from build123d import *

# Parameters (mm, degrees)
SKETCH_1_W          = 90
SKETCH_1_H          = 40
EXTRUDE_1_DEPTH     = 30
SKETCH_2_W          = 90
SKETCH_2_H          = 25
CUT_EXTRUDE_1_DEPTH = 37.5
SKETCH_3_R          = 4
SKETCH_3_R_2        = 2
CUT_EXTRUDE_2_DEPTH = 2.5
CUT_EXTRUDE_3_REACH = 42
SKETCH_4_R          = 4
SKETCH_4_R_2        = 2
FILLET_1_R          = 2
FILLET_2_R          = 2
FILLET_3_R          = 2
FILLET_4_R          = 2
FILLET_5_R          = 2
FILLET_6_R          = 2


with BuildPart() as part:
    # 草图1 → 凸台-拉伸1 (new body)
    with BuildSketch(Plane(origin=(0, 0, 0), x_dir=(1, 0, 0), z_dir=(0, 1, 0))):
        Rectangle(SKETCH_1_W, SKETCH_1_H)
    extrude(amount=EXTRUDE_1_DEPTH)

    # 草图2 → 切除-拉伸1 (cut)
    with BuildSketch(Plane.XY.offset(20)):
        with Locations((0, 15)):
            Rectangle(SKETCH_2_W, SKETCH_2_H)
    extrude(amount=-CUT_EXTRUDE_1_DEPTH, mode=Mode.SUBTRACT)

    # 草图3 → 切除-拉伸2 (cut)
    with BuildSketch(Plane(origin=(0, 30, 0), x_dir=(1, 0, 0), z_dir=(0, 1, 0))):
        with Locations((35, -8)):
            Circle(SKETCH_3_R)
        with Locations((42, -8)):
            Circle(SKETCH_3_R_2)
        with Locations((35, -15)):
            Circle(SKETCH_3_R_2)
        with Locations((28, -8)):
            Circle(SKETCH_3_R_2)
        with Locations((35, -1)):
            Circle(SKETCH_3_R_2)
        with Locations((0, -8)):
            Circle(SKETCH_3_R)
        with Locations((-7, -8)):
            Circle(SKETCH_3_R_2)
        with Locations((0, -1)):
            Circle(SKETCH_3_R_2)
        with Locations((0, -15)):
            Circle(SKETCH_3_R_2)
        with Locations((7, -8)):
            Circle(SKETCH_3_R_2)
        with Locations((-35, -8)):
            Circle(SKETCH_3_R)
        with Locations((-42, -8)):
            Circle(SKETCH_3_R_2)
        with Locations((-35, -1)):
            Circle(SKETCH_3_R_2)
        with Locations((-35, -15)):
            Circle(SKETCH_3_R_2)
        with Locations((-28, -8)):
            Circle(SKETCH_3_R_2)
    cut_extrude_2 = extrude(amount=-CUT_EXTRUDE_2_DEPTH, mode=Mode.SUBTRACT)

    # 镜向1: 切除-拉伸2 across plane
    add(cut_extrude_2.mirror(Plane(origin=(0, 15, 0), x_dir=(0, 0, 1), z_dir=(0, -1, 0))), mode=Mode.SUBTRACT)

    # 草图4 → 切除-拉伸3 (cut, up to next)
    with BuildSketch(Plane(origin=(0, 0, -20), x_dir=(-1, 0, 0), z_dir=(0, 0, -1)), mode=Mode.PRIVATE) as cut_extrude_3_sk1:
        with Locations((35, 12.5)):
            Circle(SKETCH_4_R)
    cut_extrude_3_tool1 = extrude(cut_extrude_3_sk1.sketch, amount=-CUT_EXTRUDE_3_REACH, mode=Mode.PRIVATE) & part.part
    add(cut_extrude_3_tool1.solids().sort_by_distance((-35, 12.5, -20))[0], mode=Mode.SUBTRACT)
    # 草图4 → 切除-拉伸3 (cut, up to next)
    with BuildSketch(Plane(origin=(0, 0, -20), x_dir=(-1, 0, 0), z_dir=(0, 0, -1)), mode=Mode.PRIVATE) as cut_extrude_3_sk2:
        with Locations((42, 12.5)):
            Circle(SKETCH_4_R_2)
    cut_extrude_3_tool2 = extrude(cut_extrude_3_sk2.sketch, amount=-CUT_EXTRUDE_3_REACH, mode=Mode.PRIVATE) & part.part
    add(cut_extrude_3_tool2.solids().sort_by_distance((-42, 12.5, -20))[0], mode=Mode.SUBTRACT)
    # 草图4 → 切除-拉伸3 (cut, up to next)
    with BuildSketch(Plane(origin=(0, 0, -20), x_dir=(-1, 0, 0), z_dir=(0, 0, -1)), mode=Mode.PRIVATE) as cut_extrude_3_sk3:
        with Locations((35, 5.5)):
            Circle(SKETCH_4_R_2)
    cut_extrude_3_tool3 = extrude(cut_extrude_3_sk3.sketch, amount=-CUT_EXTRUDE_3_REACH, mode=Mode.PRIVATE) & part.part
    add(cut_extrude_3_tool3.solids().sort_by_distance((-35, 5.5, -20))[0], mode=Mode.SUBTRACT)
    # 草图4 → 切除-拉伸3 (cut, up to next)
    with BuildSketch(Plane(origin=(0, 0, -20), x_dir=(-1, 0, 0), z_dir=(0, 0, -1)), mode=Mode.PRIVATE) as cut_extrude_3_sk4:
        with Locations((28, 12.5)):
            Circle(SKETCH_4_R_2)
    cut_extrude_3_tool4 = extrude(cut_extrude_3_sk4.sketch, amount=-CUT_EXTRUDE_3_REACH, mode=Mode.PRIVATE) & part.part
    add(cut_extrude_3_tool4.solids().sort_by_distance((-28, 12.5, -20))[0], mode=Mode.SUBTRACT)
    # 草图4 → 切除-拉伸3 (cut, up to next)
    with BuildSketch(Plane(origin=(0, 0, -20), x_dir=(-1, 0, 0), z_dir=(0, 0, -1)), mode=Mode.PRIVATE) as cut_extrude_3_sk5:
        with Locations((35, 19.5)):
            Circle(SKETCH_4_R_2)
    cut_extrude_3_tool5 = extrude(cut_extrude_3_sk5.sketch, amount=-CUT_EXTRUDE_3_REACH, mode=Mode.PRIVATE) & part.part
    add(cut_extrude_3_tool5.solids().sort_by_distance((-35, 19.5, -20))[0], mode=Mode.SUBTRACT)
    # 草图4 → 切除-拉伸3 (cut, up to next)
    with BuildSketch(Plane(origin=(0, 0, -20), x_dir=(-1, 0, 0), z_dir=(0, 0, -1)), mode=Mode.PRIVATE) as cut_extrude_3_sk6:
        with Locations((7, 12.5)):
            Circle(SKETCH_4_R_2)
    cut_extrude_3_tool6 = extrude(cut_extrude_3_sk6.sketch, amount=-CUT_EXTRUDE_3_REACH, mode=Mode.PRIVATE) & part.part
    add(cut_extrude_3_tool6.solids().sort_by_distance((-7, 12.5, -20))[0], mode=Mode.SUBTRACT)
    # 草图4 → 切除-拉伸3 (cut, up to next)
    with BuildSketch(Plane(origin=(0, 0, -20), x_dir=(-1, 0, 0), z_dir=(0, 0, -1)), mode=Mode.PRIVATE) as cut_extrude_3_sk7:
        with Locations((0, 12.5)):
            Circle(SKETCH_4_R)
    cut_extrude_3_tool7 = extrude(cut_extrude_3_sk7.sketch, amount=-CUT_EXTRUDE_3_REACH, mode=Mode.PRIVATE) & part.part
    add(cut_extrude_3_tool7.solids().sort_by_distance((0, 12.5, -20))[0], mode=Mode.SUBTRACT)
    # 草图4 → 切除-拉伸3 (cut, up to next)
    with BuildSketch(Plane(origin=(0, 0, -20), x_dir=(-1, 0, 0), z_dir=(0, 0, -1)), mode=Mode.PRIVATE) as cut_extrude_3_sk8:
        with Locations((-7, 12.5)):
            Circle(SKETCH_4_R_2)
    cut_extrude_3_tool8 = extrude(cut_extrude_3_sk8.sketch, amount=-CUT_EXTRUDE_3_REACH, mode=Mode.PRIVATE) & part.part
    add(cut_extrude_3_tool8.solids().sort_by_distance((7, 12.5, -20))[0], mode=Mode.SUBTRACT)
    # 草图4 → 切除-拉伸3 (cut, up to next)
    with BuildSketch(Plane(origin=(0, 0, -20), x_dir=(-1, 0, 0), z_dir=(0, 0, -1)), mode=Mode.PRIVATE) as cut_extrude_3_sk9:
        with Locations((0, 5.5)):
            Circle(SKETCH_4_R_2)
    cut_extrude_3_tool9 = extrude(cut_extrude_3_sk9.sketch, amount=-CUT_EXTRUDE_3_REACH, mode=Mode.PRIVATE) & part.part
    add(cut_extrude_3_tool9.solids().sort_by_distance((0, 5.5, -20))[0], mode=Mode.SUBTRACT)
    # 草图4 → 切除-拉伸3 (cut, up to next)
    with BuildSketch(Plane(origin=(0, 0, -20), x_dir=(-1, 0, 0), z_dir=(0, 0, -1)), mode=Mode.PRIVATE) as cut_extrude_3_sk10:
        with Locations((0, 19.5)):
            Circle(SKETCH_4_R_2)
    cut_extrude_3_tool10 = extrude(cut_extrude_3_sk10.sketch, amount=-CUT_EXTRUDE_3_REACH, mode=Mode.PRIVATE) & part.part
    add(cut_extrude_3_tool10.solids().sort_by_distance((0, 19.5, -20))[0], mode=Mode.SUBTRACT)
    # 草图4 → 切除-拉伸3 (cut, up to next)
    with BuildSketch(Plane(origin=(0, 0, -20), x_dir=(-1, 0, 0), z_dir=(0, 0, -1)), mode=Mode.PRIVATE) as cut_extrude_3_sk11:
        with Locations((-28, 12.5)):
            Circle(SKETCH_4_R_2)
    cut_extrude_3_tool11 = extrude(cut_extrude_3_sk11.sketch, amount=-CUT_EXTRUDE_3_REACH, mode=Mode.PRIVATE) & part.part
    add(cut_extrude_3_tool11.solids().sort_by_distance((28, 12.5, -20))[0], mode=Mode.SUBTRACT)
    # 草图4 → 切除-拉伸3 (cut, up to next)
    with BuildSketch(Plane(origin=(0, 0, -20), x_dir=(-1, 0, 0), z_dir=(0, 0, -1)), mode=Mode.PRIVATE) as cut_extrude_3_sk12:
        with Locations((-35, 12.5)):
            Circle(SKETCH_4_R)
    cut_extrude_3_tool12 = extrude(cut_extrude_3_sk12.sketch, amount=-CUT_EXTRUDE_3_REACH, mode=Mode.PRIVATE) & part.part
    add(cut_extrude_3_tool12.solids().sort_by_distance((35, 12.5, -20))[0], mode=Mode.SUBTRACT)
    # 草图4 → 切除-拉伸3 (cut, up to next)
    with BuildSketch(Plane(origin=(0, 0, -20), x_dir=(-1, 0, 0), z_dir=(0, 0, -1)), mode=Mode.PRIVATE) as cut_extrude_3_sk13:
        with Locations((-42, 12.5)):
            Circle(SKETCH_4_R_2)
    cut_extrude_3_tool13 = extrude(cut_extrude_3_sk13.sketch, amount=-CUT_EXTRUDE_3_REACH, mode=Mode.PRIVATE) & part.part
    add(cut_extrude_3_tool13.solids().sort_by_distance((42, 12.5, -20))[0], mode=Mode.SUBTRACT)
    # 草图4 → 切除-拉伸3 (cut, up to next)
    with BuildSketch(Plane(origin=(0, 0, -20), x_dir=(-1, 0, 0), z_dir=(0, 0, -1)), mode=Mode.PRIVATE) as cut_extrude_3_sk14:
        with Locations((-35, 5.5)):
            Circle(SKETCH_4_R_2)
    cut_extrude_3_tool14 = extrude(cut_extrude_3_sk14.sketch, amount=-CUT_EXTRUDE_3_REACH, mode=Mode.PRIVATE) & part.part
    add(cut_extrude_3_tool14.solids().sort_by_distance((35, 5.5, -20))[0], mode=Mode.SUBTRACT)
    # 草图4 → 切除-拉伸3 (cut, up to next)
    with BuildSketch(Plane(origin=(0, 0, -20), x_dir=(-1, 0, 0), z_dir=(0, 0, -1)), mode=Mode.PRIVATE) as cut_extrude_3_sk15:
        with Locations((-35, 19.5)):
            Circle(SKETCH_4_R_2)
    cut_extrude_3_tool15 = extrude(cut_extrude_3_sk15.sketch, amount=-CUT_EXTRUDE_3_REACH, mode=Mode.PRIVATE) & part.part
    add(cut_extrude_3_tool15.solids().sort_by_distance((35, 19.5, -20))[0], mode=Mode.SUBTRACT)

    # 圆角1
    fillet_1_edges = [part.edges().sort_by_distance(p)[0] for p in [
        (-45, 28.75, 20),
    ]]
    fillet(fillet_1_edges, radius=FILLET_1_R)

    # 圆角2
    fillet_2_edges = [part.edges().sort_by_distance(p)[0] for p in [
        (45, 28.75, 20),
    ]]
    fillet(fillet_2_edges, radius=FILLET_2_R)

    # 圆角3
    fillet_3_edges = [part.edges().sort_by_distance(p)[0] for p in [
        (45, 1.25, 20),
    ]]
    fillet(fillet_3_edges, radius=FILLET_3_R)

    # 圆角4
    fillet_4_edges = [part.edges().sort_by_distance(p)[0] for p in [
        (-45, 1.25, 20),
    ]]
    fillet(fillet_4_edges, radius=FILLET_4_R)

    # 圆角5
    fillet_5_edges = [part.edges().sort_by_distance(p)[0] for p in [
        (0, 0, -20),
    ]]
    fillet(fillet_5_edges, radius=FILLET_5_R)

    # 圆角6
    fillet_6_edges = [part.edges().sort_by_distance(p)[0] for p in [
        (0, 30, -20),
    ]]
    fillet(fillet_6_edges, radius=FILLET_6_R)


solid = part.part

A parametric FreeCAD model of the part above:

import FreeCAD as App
import Part
import Sketcher
Q = App.Units.Quantity


def edges_at(feature, points):
    """Names of the edges that pass closest to the given points."""
    edges = feature.Shape.Edges
    near = lambda p: min(range(len(edges)), key=lambda i: edges[i].distToShape(Part.Vertex(*p))[0])
    return sorted({f"Edge{near(p) + 1}" for p in points})


def add_polygon(sketch, points):
    """Adds a closed chain of lines whose ends are joined by coincident constraints."""
    first, n = sketch.GeometryCount, len(points)
    for a, b in zip(points, points[1:] + points[:1]):
        sketch.addGeometry(Part.LineSegment(App.Vector(*a, 0), App.Vector(*b, 0)), False)
    for i in range(n):
        sketch.addConstraint(Sketcher.Constraint("Coincident", first + i, 2, first + (i + 1) % n, 1))

doc = App.newDocument("Part")
body = doc.addObject("PartDesign::Body", "Body")

# Sketch on XZ plane
sketch1 = doc.addObject("Sketcher::SketchObject", "Sketch")
body.addObject(sketch1)
sketch1.AttachmentSupport = (doc.XZ_Plane, [""])
sketch1.MapMode = "FlatFace"
add_polygon(sketch1, [(-45, -20), (-45, 20), (45, 20), (45, -20)])  # lines 0-3
sketch1.addConstraint([
    Sketcher.Constraint("Vertical", 0),
    Sketcher.Constraint("Horizontal", 1),
    Sketcher.Constraint("Vertical", 2),
    Sketcher.Constraint("Horizontal", 3),
    Sketcher.Constraint("Symmetric", 0, 2, 2, 2, -1, 1),
    Sketcher.Constraint("DistanceX", 1, 1, 1, 2, Q("90 mm")),
    Sketcher.Constraint("DistanceY", 0, 1, 0, 2, Q("40 mm")),
])
pad1 = doc.addObject("PartDesign::Pad", "Pad")
body.addObject(pad1)
pad1.Profile = sketch1
pad1.Length = 30
pad1.Reversed = True

# Sketch on XY plane
sketch2 = doc.addObject("Sketcher::SketchObject", "Sketch001")
body.addObject(sketch2)
sketch2.AttachmentSupport = (doc.XY_Plane, [""])
sketch2.MapMode = "FlatFace"
sketch2.AttachmentOffset = App.Placement(App.Vector(0, 0, 20), App.Rotation())
add_polygon(sketch2, [(-45, 28), (-45, 2), (45, 2), (45, 28)])  # lines 0-3
sketch2.addConstraint([
    Sketcher.Constraint("Vertical", 0),
    Sketcher.Constraint("Horizontal", 1),
    Sketcher.Constraint("Vertical", 2),
    Sketcher.Constraint("Horizontal", 3),
    Sketcher.Constraint("DistanceX", 1, 1, 1, 2, Q("90 mm")),
    Sketcher.Constraint("DistanceY", 0, 2, 0, 1, Q("25 mm")),
    Sketcher.Constraint("DistanceX", 0, 2, -1, 1, Q("45 mm")),
    Sketcher.Constraint("DistanceY", -1, 1, 0, 2, Q("2.5 mm")),
])
pocket1 = doc.addObject("PartDesign::Pocket", "Pocket")
body.addObject(pocket1)
pocket1.Profile = sketch2
pocket1.Length = 37.5

# Sketch on XZ plane
sketch3 = doc.addObject("Sketcher::SketchObject", "Sketch002")
body.addObject(sketch3)
sketch3.AttachmentSupport = (doc.XZ_Plane, [""])
sketch3.MapMode = "FlatFace"
sketch3.AttachmentOffset = App.Placement(App.Vector(0, 0, -30), App.Rotation())
sketch3.addGeometry([
    Part.Circle(App.Vector(35, 8, 0), App.Vector(0, 0, 1), 4),  # 0
    Part.Circle(App.Vector(42, 8, 0), App.Vector(0, 0, 1), 2),  # 1
    Part.Circle(App.Vector(35, 15, 0), App.Vector(0, 0, 1), 2),  # 2
    Part.Circle(App.Vector(28, 8, 0), App.Vector(0, 0, 1), 2),  # 3
    Part.Circle(App.Vector(35, 1, 0), App.Vector(0, 0, 1), 2),  # 4
    Part.Circle(App.Vector(0, 8, 0), App.Vector(0, 0, 1), 4),  # 5
    Part.Circle(App.Vector(-7, 8, 0), App.Vector(0, 0, 1), 2),  # 6
    Part.Circle(App.Vector(0, 1, 0), App.Vector(0, 0, 1), 2),  # 7
    Part.Circle(App.Vector(0, 15, 0), App.Vector(0, 0, 1), 2),  # 8
    Part.Circle(App.Vector(7, 8, 0), App.Vector(0, 0, 1), 2),  # 9
    Part.Circle(App.Vector(-35, 8, 0), App.Vector(0, 0, 1), 4),  # 10
    Part.Circle(App.Vector(-42, 8, 0), App.Vector(0, 0, 1), 2),  # 11
    Part.Circle(App.Vector(-35, 1, 0), App.Vector(0, 0, 1), 2),  # 12
    Part.Circle(App.Vector(-35, 15, 0), App.Vector(0, 0, 1), 2),  # 13
    Part.Circle(App.Vector(-28, 8, 0), App.Vector(0, 0, 1), 2),  # 14
], False)
sketch3.addConstraint([
    Sketcher.Constraint("Equal", 1, 2),
    Sketcher.Constraint("Equal", 2, 3),
    Sketcher.Constraint("Equal", 3, 4),
    Sketcher.Constraint("Equal", 0, 5),
    Sketcher.Constraint("Equal", 4, 6),
    Sketcher.Constraint("Equal", 6, 7),
    Sketcher.Constraint("Equal", 7, 8),
    Sketcher.Constraint("Equal", 8, 9),
    Sketcher.Constraint("Equal", 5, 10),
    Sketcher.Constraint("Equal", 9, 11),
    Sketcher.Constraint("Equal", 11, 12),
    Sketcher.Constraint("Equal", 12, 13),
    Sketcher.Constraint("Equal", 13, 14),
    Sketcher.Constraint("Symmetric", 6, 3, 9, 3, -2),
    Sketcher.Constraint("Symmetric", 0, 3, 10, 3, -2),
    Sketcher.Constraint("Symmetric", 1, 3, 11, 3, -2),
    Sketcher.Constraint("Symmetric", 4, 3, 12, 3, -2),
    Sketcher.Constraint("Symmetric", 2, 3, 13, 3, -2),
    Sketcher.Constraint("Symmetric", 3, 3, 14, 3, -2),
    Sketcher.Constraint("PointOnObject", 5, 3, -2),
    Sketcher.Constraint("PointOnObject", 7, 3, -2),
    Sketcher.Constraint("PointOnObject", 8, 3, -2),
    Sketcher.Constraint("Horizontal", 0, 3, 1, 3),
    Sketcher.Constraint("Horizontal", 1, 3, 3, 3),
    Sketcher.Constraint("Horizontal", 3, 3, 5, 3),
    Sketcher.Constraint("Horizontal", 5, 3, 6, 3),
    Sketcher.Constraint("Horizontal", 4, 3, 7, 3),
    Sketcher.Constraint("Horizontal", 2, 3, 8, 3),
    Sketcher.Constraint("Vertical", 0, 3, 2, 3),
    Sketcher.Constraint("Vertical", 2, 3, 4, 3),
    Sketcher.Constraint("Diameter", 0, Q("8 mm")),
    Sketcher.Constraint("Diameter", 1, Q("4 mm")),
    Sketcher.Constraint("DistanceX", -1, 1, 0, 3, Q("35 mm")),
    Sketcher.Constraint("DistanceY", -1, 1, 0, 3, Q("8 mm")),
    Sketcher.Constraint("DistanceX", -1, 1, 1, 3, Q("42 mm")),
    Sketcher.Constraint("DistanceY", -1, 1, 2, 3, Q("15 mm")),
    Sketcher.Constraint("DistanceX", -1, 1, 3, 3, Q("28 mm")),
    Sketcher.Constraint("DistanceY", -1, 1, 4, 3, Q("1 mm")),
    Sketcher.Constraint("DistanceX", 6, 3, -1, 1, Q("7 mm")),
])
pocket2 = doc.addObject("PartDesign::Pocket", "Pocket001")
body.addObject(pocket2)
pocket2.Profile = sketch3
pocket2.Length = 2.5
pocket2.Reversed = True
doc.recompute()

datumplane = doc.addObject("PartDesign::Plane", "DatumPlane")
body.addObject(datumplane)
datumplane.AttachmentSupport = (doc.XZ_Plane, [""])
datumplane.MapMode = "FlatFace"
datumplane.AttachmentOffset = App.Placement(App.Vector(0, 0, -15), App.Rotation())
mirrored = doc.addObject("PartDesign::Mirrored", "Mirrored")
body.addObject(mirrored)
mirrored.Originals = [pocket2]
mirrored.MirrorPlane = (datumplane, [""])
body.Tip = mirrored

# Sketch on XY plane
sketch4 = doc.addObject("Sketcher::SketchObject", "Sketch003")
body.addObject(sketch4)
sketch4.AttachmentSupport = (doc.XY_Plane, [""])
sketch4.MapMode = "FlatFace"
sketch4.AttachmentOffset = App.Placement(App.Vector(0, 0, -20), App.Rotation())
sketch4.addGeometry(Part.Circle(App.Vector(-35, 12.5, 0), App.Vector(0, 0, 1), 4), False)
sketch4.addConstraint([
    Sketcher.Constraint("Diameter", 0, Q("8 mm")),
    Sketcher.Constraint("DistanceX", 0, 3, -1, 1, Q("35 mm")),
    Sketcher.Constraint("DistanceY", -1, 1, 0, 3, Q("12.5 mm")),
])
pocket3 = doc.addObject("PartDesign::Pocket", "Pocket002")
body.addObject(pocket3)
pocket3.Profile = sketch4
pocket3.Type = "UpToFirst"
pocket3.Reversed = True

# Sketch on XY plane
sketch5 = doc.addObject("Sketcher::SketchObject", "Sketch004")
body.addObject(sketch5)
sketch5.AttachmentSupport = (doc.XY_Plane, [""])
sketch5.MapMode = "FlatFace"
sketch5.AttachmentOffset = App.Placement(App.Vector(0, 0, -20), App.Rotation())
sketch5.addGeometry(Part.Circle(App.Vector(-42, 12.5, 0), App.Vector(0, 0, 1), 2), False)
sketch5.addConstraint([
    Sketcher.Constraint("Diameter", 0, Q("4 mm")),
    Sketcher.Constraint("DistanceX", 0, 3, -1, 1, Q("42 mm")),
    Sketcher.Constraint("DistanceY", -1, 1, 0, 3, Q("12.5 mm")),
])
pocket4 = doc.addObject("PartDesign::Pocket", "Pocket003")
body.addObject(pocket4)
pocket4.Profile = sketch5
pocket4.Type = "UpToFirst"
pocket4.Reversed = True

# Sketch on XY plane
sketch6 = doc.addObject("Sketcher::SketchObject", "Sketch005")
body.addObject(sketch6)
sketch6.AttachmentSupport = (doc.XY_Plane, [""])
sketch6.MapMode = "FlatFace"
sketch6.AttachmentOffset = App.Placement(App.Vector(0, 0, -20), App.Rotation())
sketch6.addGeometry(Part.Circle(App.Vector(-35, 5.5, 0), App.Vector(0, 0, 1), 2), False)
sketch6.addConstraint([
    Sketcher.Constraint("Diameter", 0, Q("4 mm")),
    Sketcher.Constraint("DistanceX", 0, 3, -1, 1, Q("35 mm")),
    Sketcher.Constraint("DistanceY", -1, 1, 0, 3, Q("5.5 mm")),
])
pocket5 = doc.addObject("PartDesign::Pocket", "Pocket004")
body.addObject(pocket5)
pocket5.Profile = sketch6
pocket5.Type = "UpToFirst"
pocket5.Reversed = True

# Sketch on XY plane
sketch7 = doc.addObject("Sketcher::SketchObject", "Sketch006")
body.addObject(sketch7)
sketch7.AttachmentSupport = (doc.XY_Plane, [""])
sketch7.MapMode = "FlatFace"
sketch7.AttachmentOffset = App.Placement(App.Vector(0, 0, -20), App.Rotation())
sketch7.addGeometry(Part.Circle(App.Vector(-28, 12.5, 0), App.Vector(0, 0, 1), 2), False)
sketch7.addConstraint([
    Sketcher.Constraint("Diameter", 0, Q("4 mm")),
    Sketcher.Constraint("DistanceX", 0, 3, -1, 1, Q("28 mm")),
    Sketcher.Constraint("DistanceY", -1, 1, 0, 3, Q("12.5 mm")),
])
pocket6 = doc.addObject("PartDesign::Pocket", "Pocket005")
body.addObject(pocket6)
pocket6.Profile = sketch7
pocket6.Type = "UpToFirst"
pocket6.Reversed = True

# Sketch on XY plane
sketch8 = doc.addObject("Sketcher::SketchObject", "Sketch007")
body.addObject(sketch8)
sketch8.AttachmentSupport = (doc.XY_Plane, [""])
sketch8.MapMode = "FlatFace"
sketch8.AttachmentOffset = App.Placement(App.Vector(0, 0, -20), App.Rotation())
sketch8.addGeometry(Part.Circle(App.Vector(-35, 19.5, 0), App.Vector(0, 0, 1), 2), False)
sketch8.addConstraint([
    Sketcher.Constraint("Diameter", 0, Q("4 mm")),
    Sketcher.Constraint("DistanceX", 0, 3, -1, 1, Q("35 mm")),
    Sketcher.Constraint("DistanceY", -1, 1, 0, 3, Q("19.5 mm")),
])
pocket7 = doc.addObject("PartDesign::Pocket", "Pocket006")
body.addObject(pocket7)
pocket7.Profile = sketch8
pocket7.Type = "UpToFirst"
pocket7.Reversed = True

# Sketch on XY plane
sketch9 = doc.addObject("Sketcher::SketchObject", "Sketch008")
body.addObject(sketch9)
sketch9.AttachmentSupport = (doc.XY_Plane, [""])
sketch9.MapMode = "FlatFace"
sketch9.AttachmentOffset = App.Placement(App.Vector(0, 0, -20), App.Rotation())
sketch9.addGeometry(Part.Circle(App.Vector(-7, 12.5, 0), App.Vector(0, 0, 1), 2), False)
sketch9.addConstraint([
    Sketcher.Constraint("Diameter", 0, Q("4 mm")),
    Sketcher.Constraint("DistanceX", 0, 3, -1, 1, Q("7 mm")),
    Sketcher.Constraint("DistanceY", -1, 1, 0, 3, Q("12.5 mm")),
])
pocket8 = doc.addObject("PartDesign::Pocket", "Pocket007")
body.addObject(pocket8)
pocket8.Profile = sketch9
pocket8.Type = "UpToFirst"
pocket8.Reversed = True

# Sketch on XY plane
sketch10 = doc.addObject("Sketcher::SketchObject", "Sketch009")
body.addObject(sketch10)
sketch10.AttachmentSupport = (doc.XY_Plane, [""])
sketch10.MapMode = "FlatFace"
sketch10.AttachmentOffset = App.Placement(App.Vector(0, 0, -20), App.Rotation())
sketch10.addGeometry(Part.Circle(App.Vector(0, 12.5, 0), App.Vector(0, 0, 1), 4), False)
sketch10.addConstraint([
    Sketcher.Constraint("PointOnObject", 0, 3, -2),
    Sketcher.Constraint("Diameter", 0, Q("8 mm")),
    Sketcher.Constraint("DistanceY", -1, 1, 0, 3, Q("12.5 mm")),
])
pocket9 = doc.addObject("PartDesign::Pocket", "Pocket008")
body.addObject(pocket9)
pocket9.Profile = sketch10
pocket9.Type = "UpToFirst"
pocket9.Reversed = True

# Sketch on XY plane
sketch11 = doc.addObject("Sketcher::SketchObject", "Sketch010")
body.addObject(sketch11)
sketch11.AttachmentSupport = (doc.XY_Plane, [""])
sketch11.MapMode = "FlatFace"
sketch11.AttachmentOffset = App.Placement(App.Vector(0, 0, -20), App.Rotation())
sketch11.addGeometry(Part.Circle(App.Vector(7, 12.5, 0), App.Vector(0, 0, 1), 2), False)
sketch11.addConstraint([
    Sketcher.Constraint("Diameter", 0, Q("4 mm")),
    Sketcher.Constraint("DistanceX", -1, 1, 0, 3, Q("7 mm")),
    Sketcher.Constraint("DistanceY", -1, 1, 0, 3, Q("12.5 mm")),
])
pocket10 = doc.addObject("PartDesign::Pocket", "Pocket009")
body.addObject(pocket10)
pocket10.Profile = sketch11
pocket10.Type = "UpToFirst"
pocket10.Reversed = True

# Sketch on XY plane
sketch12 = doc.addObject("Sketcher::SketchObject", "Sketch011")
body.addObject(sketch12)
sketch12.AttachmentSupport = (doc.XY_Plane, [""])
sketch12.MapMode = "FlatFace"
sketch12.AttachmentOffset = App.Placement(App.Vector(0, 0, -20), App.Rotation())
sketch12.addGeometry(Part.Circle(App.Vector(0, 5.5, 0), App.Vector(0, 0, 1), 2), False)
sketch12.addConstraint([
    Sketcher.Constraint("PointOnObject", 0, 3, -2),
    Sketcher.Constraint("Diameter", 0, Q("4 mm")),
    Sketcher.Constraint("DistanceY", -1, 1, 0, 3, Q("5.5 mm")),
])
pocket11 = doc.addObject("PartDesign::Pocket", "Pocket010")
body.addObject(pocket11)
pocket11.Profile = sketch12
pocket11.Type = "UpToFirst"
pocket11.Reversed = True

# Sketch on XY plane
sketch13 = doc.addObject("Sketcher::SketchObject", "Sketch012")
body.addObject(sketch13)
sketch13.AttachmentSupport = (doc.XY_Plane, [""])
sketch13.MapMode = "FlatFace"
sketch13.AttachmentOffset = App.Placement(App.Vector(0, 0, -20), App.Rotation())
sketch13.addGeometry(Part.Circle(App.Vector(0, 19.5, 0), App.Vector(0, 0, 1), 2), False)
sketch13.addConstraint([
    Sketcher.Constraint("PointOnObject", 0, 3, -2),
    Sketcher.Constraint("Diameter", 0, Q("4 mm")),
    Sketcher.Constraint("DistanceY", -1, 1, 0, 3, Q("19.5 mm")),
])
pocket12 = doc.addObject("PartDesign::Pocket", "Pocket011")
body.addObject(pocket12)
pocket12.Profile = sketch13
pocket12.Type = "UpToFirst"
pocket12.Reversed = True

# Sketch on XY plane
sketch14 = doc.addObject("Sketcher::SketchObject", "Sketch013")
body.addObject(sketch14)
sketch14.AttachmentSupport = (doc.XY_Plane, [""])
sketch14.MapMode = "FlatFace"
sketch14.AttachmentOffset = App.Placement(App.Vector(0, 0, -20), App.Rotation())
sketch14.addGeometry(Part.Circle(App.Vector(28, 12.5, 0), App.Vector(0, 0, 1), 2), False)
sketch14.addConstraint([
    Sketcher.Constraint("Diameter", 0, Q("4 mm")),
    Sketcher.Constraint("DistanceX", -1, 1, 0, 3, Q("28 mm")),
    Sketcher.Constraint("DistanceY", -1, 1, 0, 3, Q("12.5 mm")),
])
pocket13 = doc.addObject("PartDesign::Pocket", "Pocket012")
body.addObject(pocket13)
pocket13.Profile = sketch14
pocket13.Type = "UpToFirst"
pocket13.Reversed = True

# Sketch on XY plane
sketch15 = doc.addObject("Sketcher::SketchObject", "Sketch014")
body.addObject(sketch15)
sketch15.AttachmentSupport = (doc.XY_Plane, [""])
sketch15.MapMode = "FlatFace"
sketch15.AttachmentOffset = App.Placement(App.Vector(0, 0, -20), App.Rotation())
sketch15.addGeometry(Part.Circle(App.Vector(35, 12.5, 0), App.Vector(0, 0, 1), 4), False)
sketch15.addConstraint([
    Sketcher.Constraint("Diameter", 0, Q("8 mm")),
    Sketcher.Constraint("DistanceX", -1, 1, 0, 3, Q("35 mm")),
    Sketcher.Constraint("DistanceY", -1, 1, 0, 3, Q("12.5 mm")),
])
pocket14 = doc.addObject("PartDesign::Pocket", "Pocket013")
body.addObject(pocket14)
pocket14.Profile = sketch15
pocket14.Type = "UpToFirst"
pocket14.Reversed = True

# Sketch on XY plane
sketch16 = doc.addObject("Sketcher::SketchObject", "Sketch015")
body.addObject(sketch16)
sketch16.AttachmentSupport = (doc.XY_Plane, [""])
sketch16.MapMode = "FlatFace"
sketch16.AttachmentOffset = App.Placement(App.Vector(0, 0, -20), App.Rotation())
sketch16.addGeometry(Part.Circle(App.Vector(42, 12.5, 0), App.Vector(0, 0, 1), 2), False)
sketch16.addConstraint([
    Sketcher.Constraint("Diameter", 0, Q("4 mm")),
    Sketcher.Constraint("DistanceX", -1, 1, 0, 3, Q("42 mm")),
    Sketcher.Constraint("DistanceY", -1, 1, 0, 3, Q("12.5 mm")),
])
pocket15 = doc.addObject("PartDesign::Pocket", "Pocket014")
body.addObject(pocket15)
pocket15.Profile = sketch16
pocket15.Type = "UpToFirst"
pocket15.Reversed = True

# Sketch on XY plane
sketch17 = doc.addObject("Sketcher::SketchObject", "Sketch016")
body.addObject(sketch17)
sketch17.AttachmentSupport = (doc.XY_Plane, [""])
sketch17.MapMode = "FlatFace"
sketch17.AttachmentOffset = App.Placement(App.Vector(0, 0, -20), App.Rotation())
sketch17.addGeometry(Part.Circle(App.Vector(35, 5.5, 0), App.Vector(0, 0, 1), 2), False)
sketch17.addConstraint([
    Sketcher.Constraint("Diameter", 0, Q("4 mm")),
    Sketcher.Constraint("DistanceX", -1, 1, 0, 3, Q("35 mm")),
    Sketcher.Constraint("DistanceY", -1, 1, 0, 3, Q("5.5 mm")),
])
pocket16 = doc.addObject("PartDesign::Pocket", "Pocket015")
body.addObject(pocket16)
pocket16.Profile = sketch17
pocket16.Type = "UpToFirst"
pocket16.Reversed = True

# Sketch on XY plane
sketch18 = doc.addObject("Sketcher::SketchObject", "Sketch017")
body.addObject(sketch18)
sketch18.AttachmentSupport = (doc.XY_Plane, [""])
sketch18.MapMode = "FlatFace"
sketch18.AttachmentOffset = App.Placement(App.Vector(0, 0, -20), App.Rotation())
sketch18.addGeometry(Part.Circle(App.Vector(35, 19.5, 0), App.Vector(0, 0, 1), 2), False)
sketch18.addConstraint([
    Sketcher.Constraint("Diameter", 0, Q("4 mm")),
    Sketcher.Constraint("DistanceX", -1, 1, 0, 3, Q("35 mm")),
    Sketcher.Constraint("DistanceY", -1, 1, 0, 3, Q("19.5 mm")),
])
pocket17 = doc.addObject("PartDesign::Pocket", "Pocket016")
body.addObject(pocket17)
pocket17.Profile = sketch18
pocket17.Type = "UpToFirst"
pocket17.Reversed = True
doc.recompute()

fillet = doc.addObject("PartDesign::Fillet", "Fillet")
body.addObject(fillet)
fillet.Base = (pocket17, edges_at(pocket17, [(-45, 28.75, 20)]))
fillet.Radius = 2
doc.recompute()

fillet2 = doc.addObject("PartDesign::Fillet", "Fillet001")
body.addObject(fillet2)
fillet2.Base = (fillet, edges_at(fillet, [(45, 28.75, 20)]))
fillet2.Radius = 2
doc.recompute()

fillet3 = doc.addObject("PartDesign::Fillet", "Fillet002")
body.addObject(fillet3)
fillet3.Base = (fillet2, edges_at(fillet2, [(45, 1.25, 20)]))
fillet3.Radius = 2
doc.recompute()

fillet4 = doc.addObject("PartDesign::Fillet", "Fillet003")
body.addObject(fillet4)
fillet4.Base = (fillet3, edges_at(fillet3, [(-45, 1.25, 20)]))
fillet4.Radius = 2
doc.recompute()

fillet5 = doc.addObject("PartDesign::Fillet", "Fillet004")
body.addObject(fillet5)
fillet5.Base = (fillet4, edges_at(fillet4, [(0, 0, -20)]))
fillet5.Radius = 2
doc.recompute()

fillet6 = doc.addObject("PartDesign::Fillet", "Fillet005")
body.addObject(fillet6)
fillet6.Base = (fillet5, edges_at(fillet5, [(0, 30, -20)]))
fillet6.Radius = 2

doc.recompute()
